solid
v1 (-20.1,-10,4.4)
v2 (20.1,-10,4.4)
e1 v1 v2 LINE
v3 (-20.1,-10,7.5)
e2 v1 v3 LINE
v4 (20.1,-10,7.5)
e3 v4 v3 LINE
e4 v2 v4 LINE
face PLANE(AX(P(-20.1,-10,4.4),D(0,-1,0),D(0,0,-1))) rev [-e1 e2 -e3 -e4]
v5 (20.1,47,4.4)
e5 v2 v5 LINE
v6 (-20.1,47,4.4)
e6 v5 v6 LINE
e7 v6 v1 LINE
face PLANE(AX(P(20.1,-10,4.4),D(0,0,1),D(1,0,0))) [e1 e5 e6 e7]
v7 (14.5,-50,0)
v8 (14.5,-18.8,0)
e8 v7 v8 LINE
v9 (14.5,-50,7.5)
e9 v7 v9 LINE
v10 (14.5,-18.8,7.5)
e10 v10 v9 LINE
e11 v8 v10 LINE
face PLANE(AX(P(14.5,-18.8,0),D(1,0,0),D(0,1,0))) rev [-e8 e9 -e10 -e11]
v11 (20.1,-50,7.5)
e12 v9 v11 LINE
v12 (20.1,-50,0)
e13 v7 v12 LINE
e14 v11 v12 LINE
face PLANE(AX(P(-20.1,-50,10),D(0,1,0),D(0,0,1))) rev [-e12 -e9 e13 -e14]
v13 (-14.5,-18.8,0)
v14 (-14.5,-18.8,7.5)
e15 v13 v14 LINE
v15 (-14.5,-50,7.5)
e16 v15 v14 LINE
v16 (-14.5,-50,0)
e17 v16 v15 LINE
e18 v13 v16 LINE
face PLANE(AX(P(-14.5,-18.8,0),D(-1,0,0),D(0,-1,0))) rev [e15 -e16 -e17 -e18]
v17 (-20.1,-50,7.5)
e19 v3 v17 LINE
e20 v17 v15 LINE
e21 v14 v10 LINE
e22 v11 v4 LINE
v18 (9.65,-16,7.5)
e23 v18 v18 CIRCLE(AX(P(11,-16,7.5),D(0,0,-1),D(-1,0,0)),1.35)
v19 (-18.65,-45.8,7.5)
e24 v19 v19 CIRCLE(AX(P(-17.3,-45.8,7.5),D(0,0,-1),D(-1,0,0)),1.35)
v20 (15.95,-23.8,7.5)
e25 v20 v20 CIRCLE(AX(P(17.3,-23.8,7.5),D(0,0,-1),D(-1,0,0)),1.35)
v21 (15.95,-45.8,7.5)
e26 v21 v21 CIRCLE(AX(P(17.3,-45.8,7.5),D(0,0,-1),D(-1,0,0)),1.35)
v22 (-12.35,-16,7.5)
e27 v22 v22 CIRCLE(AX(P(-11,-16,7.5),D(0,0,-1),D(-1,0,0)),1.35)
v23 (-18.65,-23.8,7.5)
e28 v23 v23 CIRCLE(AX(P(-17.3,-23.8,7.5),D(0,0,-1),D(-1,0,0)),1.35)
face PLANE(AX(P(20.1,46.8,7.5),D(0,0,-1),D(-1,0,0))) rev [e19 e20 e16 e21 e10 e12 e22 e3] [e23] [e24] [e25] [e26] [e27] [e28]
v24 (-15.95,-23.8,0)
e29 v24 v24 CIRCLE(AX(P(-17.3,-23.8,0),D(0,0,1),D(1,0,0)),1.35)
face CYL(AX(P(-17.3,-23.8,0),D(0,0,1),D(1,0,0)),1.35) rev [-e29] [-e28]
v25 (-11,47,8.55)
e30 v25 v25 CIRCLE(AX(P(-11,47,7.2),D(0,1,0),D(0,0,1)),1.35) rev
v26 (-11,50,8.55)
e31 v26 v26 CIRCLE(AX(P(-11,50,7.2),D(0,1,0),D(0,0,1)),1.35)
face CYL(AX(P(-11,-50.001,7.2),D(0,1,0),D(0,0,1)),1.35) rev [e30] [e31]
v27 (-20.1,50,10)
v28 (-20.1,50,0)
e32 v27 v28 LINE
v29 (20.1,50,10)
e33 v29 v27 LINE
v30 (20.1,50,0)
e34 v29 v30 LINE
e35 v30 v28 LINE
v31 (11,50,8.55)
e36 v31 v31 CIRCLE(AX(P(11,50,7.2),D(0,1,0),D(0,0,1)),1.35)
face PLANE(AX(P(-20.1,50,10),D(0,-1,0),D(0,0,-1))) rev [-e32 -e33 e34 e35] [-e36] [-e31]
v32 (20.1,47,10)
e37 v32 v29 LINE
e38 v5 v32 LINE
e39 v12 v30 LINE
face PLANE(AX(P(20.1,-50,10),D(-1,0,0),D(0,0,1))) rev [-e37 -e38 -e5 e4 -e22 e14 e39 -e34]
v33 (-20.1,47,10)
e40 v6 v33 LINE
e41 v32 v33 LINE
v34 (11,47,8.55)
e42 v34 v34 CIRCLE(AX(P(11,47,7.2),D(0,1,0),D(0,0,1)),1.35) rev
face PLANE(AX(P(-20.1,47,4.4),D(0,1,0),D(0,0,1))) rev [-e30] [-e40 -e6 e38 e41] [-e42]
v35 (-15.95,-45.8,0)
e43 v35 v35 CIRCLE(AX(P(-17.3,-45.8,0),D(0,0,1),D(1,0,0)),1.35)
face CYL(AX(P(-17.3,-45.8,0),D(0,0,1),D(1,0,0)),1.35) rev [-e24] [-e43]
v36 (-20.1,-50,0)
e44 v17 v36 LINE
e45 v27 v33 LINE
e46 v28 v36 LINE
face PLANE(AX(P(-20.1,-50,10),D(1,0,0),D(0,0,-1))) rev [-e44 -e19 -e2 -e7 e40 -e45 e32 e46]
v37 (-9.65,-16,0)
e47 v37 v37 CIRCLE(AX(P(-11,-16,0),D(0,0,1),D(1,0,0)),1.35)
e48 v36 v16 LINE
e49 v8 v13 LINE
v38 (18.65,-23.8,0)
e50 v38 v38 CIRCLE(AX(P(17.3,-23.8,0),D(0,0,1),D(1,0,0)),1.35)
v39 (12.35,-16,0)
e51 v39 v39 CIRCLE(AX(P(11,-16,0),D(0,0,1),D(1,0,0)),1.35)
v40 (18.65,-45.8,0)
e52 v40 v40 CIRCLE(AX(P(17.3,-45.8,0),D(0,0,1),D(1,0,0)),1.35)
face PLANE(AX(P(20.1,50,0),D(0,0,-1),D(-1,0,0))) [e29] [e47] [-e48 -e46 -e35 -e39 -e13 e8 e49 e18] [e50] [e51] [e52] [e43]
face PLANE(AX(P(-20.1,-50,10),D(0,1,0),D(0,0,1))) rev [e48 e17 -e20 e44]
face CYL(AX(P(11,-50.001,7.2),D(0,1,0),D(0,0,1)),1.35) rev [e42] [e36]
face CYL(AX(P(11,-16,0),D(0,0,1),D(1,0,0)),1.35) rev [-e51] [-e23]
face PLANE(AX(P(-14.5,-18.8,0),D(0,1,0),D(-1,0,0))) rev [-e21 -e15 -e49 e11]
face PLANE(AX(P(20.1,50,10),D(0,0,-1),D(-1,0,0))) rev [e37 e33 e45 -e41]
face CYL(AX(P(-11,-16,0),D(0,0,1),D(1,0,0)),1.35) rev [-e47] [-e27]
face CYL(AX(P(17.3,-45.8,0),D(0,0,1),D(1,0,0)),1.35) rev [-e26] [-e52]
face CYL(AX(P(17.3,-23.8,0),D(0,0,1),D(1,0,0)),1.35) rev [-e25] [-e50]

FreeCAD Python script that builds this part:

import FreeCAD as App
import Part
import Sketcher
Q = App.Units.Quantity

doc = App.newDocument("Part")
body = doc.addObject("PartDesign::Body", "Body")

sketch1 = doc.addObject("Sketcher::SketchObject", "Sketch")
body.addObject(sketch1)
sketch1.AttachmentSupport = (doc.XY_Plane, [""])
sketch1.MapMode = "FlatFace"
sketch1.addGeometry(Part.LineSegment(App.Vector(-20.1, 50, 0), App.Vector(-20.1, -50, 0)), False)
sketch1.addGeometry(Part.LineSegment(App.Vector(-20.1, -50, 0), App.Vector(20.1, -50, 0)), False)
sketch1.addGeometry(Part.LineSegment(App.Vector(20.1, -50, 0), App.Vector(20.1, 50, 0)), False)
sketch1.addGeometry(Part.LineSegment(App.Vector(20.1, 50, 0), App.Vector(-20.1, 50, 0)), False)
sketch1.addConstraint(Sketcher.Constraint("Coincident", 0, 2, 1, 1))
sketch1.addConstraint(Sketcher.Constraint("Coincident", 1, 2, 2, 1))
sketch1.addConstraint(Sketcher.Constraint("Coincident", 2, 2, 3, 1))
sketch1.addConstraint(Sketcher.Constraint("Coincident", 3, 2, 0, 1))
sketch1.addConstraint(Sketcher.Constraint("Vertical", 0))
sketch1.addConstraint(Sketcher.Constraint("Horizontal", 1))
sketch1.addConstraint(Sketcher.Constraint("Vertical", 2))
sketch1.addConstraint(Sketcher.Constraint("Horizontal", 3))
sketch1.addConstraint(Sketcher.Constraint("Symmetric", 0, 2, 2, 2, -1, 1))
sketch1.addConstraint(Sketcher.Constraint("DistanceY", 0, 2, 0, 1, Q("100 mm")))
sketch1.addConstraint(Sketcher.Constraint("DistanceX", 1, 1, 1, 2, Q("40.2 mm")))
pad1 = doc.addObject("PartDesign::Pad", "Pad")
body.addObject(pad1)
pad1.Profile = sketch1
pad1.Length = 10

sketch2 = doc.addObject("Sketcher::SketchObject", "Sketch001")
body.addObject(sketch2)
sketch2.AttachmentSupport = (doc.XY_Plane, [""])
sketch2.MapMode = "FlatFace"
sketch2.AttachmentOffset = App.Placement(App.Vector(0, 0, 10), App.Rotation())
sketch2.addGeometry(Part.LineSegment(App.Vector(-20.1, 46.8, 0), App.Vector(-20.1, -50, 0)), False)
sketch2.addGeometry(Part.LineSegment(App.Vector(-20.1, -50, 0), App.Vector(20.1, -50, 0)), False)
sketch2.addGeometry(Part.LineSegment(App.Vector(20.1, -50, 0), App.Vector(20.1, 46.8, 0)), False)
sketch2.addGeometry(Part.LineSegment(App.Vector(20.1, 46.8, 0), App.Vector(-20.1, 46.8, 0)), False)
sketch2.addConstraint(Sketcher.Constraint("Coincident", 0, 2, 1, 1))
sketch2.addConstraint(Sketcher.Constraint("Coincident", 1, 2, 2, 1))
sketch2.addConstraint(Sketcher.Constraint("Coincident", 2, 2, 3, 1))
sketch2.addConstraint(Sketcher.Constraint("Coincident", 3, 2, 0, 1))
sketch2.addConstraint(Sketcher.Constraint("Vertical", 0))
sketch2.addConstraint(Sketcher.Constraint("Horizontal", 1))
sketch2.addConstraint(Sketcher.Constraint("Vertical", 2))
sketch2.addConstraint(Sketcher.Constraint("Horizontal", 3))
sketch2.addConstraint(Sketcher.Constraint("DistanceX", 1, 1, 1, 2, Q("40.2 mm")))
sketch2.addConstraint(Sketcher.Constraint("DistanceY", 0, 2, 0, 1, Q("96.8 mm")))
sketch2.addConstraint(Sketcher.Constraint("DistanceY", 0, 2, -1, 1, Q("50 mm")))
sketch2.addConstraint(Sketcher.Constraint("DistanceX", 0, 2, -1, 1, Q("20.1 mm")))
pocket1 = doc.addObject("PartDesign::Pocket", "Pocket")
body.addObject(pocket1)
pocket1.Profile = sketch2
pocket1.Length = 2.5

sketch3 = doc.addObject("Sketcher::SketchObject", "Sketch002")
body.addObject(sketch3)
sketch3.AttachmentSupport = (doc.XY_Plane, [""])
sketch3.MapMode = "FlatFace"
sketch3.AttachmentOffset = App.Placement(App.Vector(0, 0, 10), App.Rotation())
sketch3.addGeometry(Part.LineSegment(App.Vector(-20.1, 47, 0), App.Vector(-20.1, -10, 0)), False)
sketch3.addGeometry(Part.LineSegment(App.Vector(-20.1, -10, 0), App.Vector(20.1, -10, 0)), False)
sketch3.addGeometry(Part.LineSegment(App.Vector(20.1, -10, 0), App.Vector(20.1, 47, 0)), False)
sketch3.addGeometry(Part.LineSegment(App.Vector(20.1, 47, 0), App.Vector(-20.1, 47, 0)), False)
sketch3.addConstraint(Sketcher.Constraint("Coincident", 0, 2, 1, 1))
sketch3.addConstraint(Sketcher.Constraint("Coincident", 1, 2, 2, 1))
sketch3.addConstraint(Sketcher.Constraint("Coincident", 2, 2, 3, 1))
sketch3.addConstraint(Sketcher.Constraint("Coincident", 3, 2, 0, 1))
sketch3.addConstraint(Sketcher.Constraint("Vertical", 0))
sketch3.addConstraint(Sketcher.Constraint("Horizontal", 1))
sketch3.addConstraint(Sketcher.Constraint("Vertical", 2))
sketch3.addConstraint(Sketcher.Constraint("Horizontal", 3))
sketch3.addConstraint(Sketcher.Constraint("DistanceY", 0, 2, 0, 1, Q("57 mm")))
sketch3.addConstraint(Sketcher.Constraint("DistanceX", 1, 1, 1, 2, Q("40.2 mm")))
sketch3.addConstraint(Sketcher.Constraint("DistanceY", 0, 2, -1, 1, Q("10 mm")))
sketch3.addConstraint(Sketcher.Constraint("DistanceX", 0, 2, -1, 1, Q("20.1 mm")))
pocket2 = doc.addObject("PartDesign::Pocket", "Pocket001")
body.addObject(pocket2)
pocket2.Profile = sketch3
pocket2.Length = 5.6

sketch4 = doc.addObject("Sketcher::SketchObject", "Sketch003")
body.addObject(sketch4)
sketch4.AttachmentSupport = (doc.XY_Plane, [""])
sketch4.MapMode = "FlatFace"
sketch4.AttachmentOffset = App.Placement(App.Vector(0, 0, 10), App.Rotation())
sketch4.addGeometry(Part.LineSegment(App.Vector(-14.5, -18.8, 0), App.Vector(-14.5, -50, 0)), False)
sketch4.addGeometry(Part.LineSegment(App.Vector(-14.5, -50, 0), App.Vector(14.5, -50, 0)), False)
sketch4.addGeometry(Part.LineSegment(App.Vector(14.5, -50, 0), App.Vector(14.5, -18.8, 0)), False)
sketch4.addGeometry(Part.LineSegment(App.Vector(14.5, -18.8, 0), App.Vector(-14.5, -18.8, 0)), False)
sketch4.addConstraint(Sketcher.Constraint("Coincident", 0, 2, 1, 1))
sketch4.addConstraint(Sketcher.Constraint("Coincident", 1, 2, 2, 1))
sketch4.addConstraint(Sketcher.Constraint("Coincident", 2, 2, 3, 1))
sketch4.addConstraint(Sketcher.Constraint("Coincident", 3, 2, 0, 1))
sketch4.addConstraint(Sketcher.Constraint("Vertical", 0))
sketch4.addConstraint(Sketcher.Constraint("Horizontal", 1))
sketch4.addConstraint(Sketcher.Constraint("Vertical", 2))
sketch4.addConstraint(Sketcher.Constraint("Horizontal", 3))
sketch4.addConstraint(Sketcher.Constraint("DistanceX", 1, 1, 1, 2, Q("29 mm")))
sketch4.addConstraint(Sketcher.Constraint("DistanceY", 0, 2, 0, 1, Q("31.2 mm")))
sketch4.addConstraint(Sketcher.Constraint("DistanceY", 0, 2, -1, 1, Q("50 mm")))
sketch4.addConstraint(Sketcher.Constraint("DistanceX", 0, 2, -1, 1, Q("14.5 mm")))
pocket3 = doc.addObject("PartDesign::Pocket", "Pocket002")
body.addObject(pocket3)
pocket3.Profile = sketch4
pocket3.Type = "ThroughAll"

sketch5 = doc.addObject("Sketcher::SketchObject", "Sketch004")
body.addObject(sketch5)
sketch5.AttachmentSupport = (doc.XY_Plane, [""])
sketch5.MapMode = "FlatFace"
sketch5.AttachmentOffset = App.Placement(App.Vector(0, 0, 10), App.Rotation())
sketch5.addGeometry(Part.Circle(App.Vector(17.3, -23.8, 0), App.Vector(0, 0, 1), 1.35), False)
sketch5.addGeometry(Part.Circle(App.Vector(11, -16, 0), App.Vector(0, 0, 1), 1.35), False)
sketch5.addGeometry(Part.Circle(App.Vector(-17.3, -23.8, 0), App.Vector(0, 0, 1), 1.35), False)
sketch5.addGeometry(Part.Circle(App.Vector(-11, -16, 0), App.Vector(0, 0, 1), 1.35), False)
sketch5.addGeometry(Part.Circle(App.Vector(-17.3, -45.8, 0), App.Vector(0, 0, 1), 1.35), False)
sketch5.addGeometry(Part.Circle(App.Vector(17.3, -45.8, 0), App.Vector(0, 0, 1), 1.35), False)
sketch5.addConstraint(Sketcher.Constraint("Equal", 0, 1))
sketch5.addConstraint(Sketcher.Constraint("Equal", 1, 2))
sketch5.addConstraint(Sketcher.Constraint("Equal", 2, 3))
sketch5.addConstraint(Sketcher.Constraint("Equal", 3, 4))
sketch5.addConstraint(Sketcher.Constraint("Equal", 4, 5))
sketch5.addConstraint(Sketcher.Constraint("Symmetric", 0, 3, 2, 3, -2))
sketch5.addConstraint(Sketcher.Constraint("Symmetric", 1, 3, 3, 3, -2))
sketch5.addConstraint(Sketcher.Constraint("Symmetric", 4, 3, 5, 3, -2))
sketch5.addConstraint(Sketcher.Constraint("Vertical", 2, 3, 4, 3))
sketch5.addConstraint(Sketcher.Constraint("Diameter", 0, Q("2.7 mm")))
sketch5.addConstraint(Sketcher.Constraint("DistanceX", -1, 1, 1, 3, Q("11 mm")))
sketch5.addConstraint(Sketcher.Constraint("DistanceY", 1, 3, -1, 1, Q("16 mm")))
sketch5.addConstraint(Sketcher.Constraint("DistanceY", 4, 3, 2, 3, Q("22 mm")))
sketch5.addConstraint(Sketcher.Constraint("DistanceX", -1, 1, 0, 3, Q("17.3 mm")))
sketch5.addConstraint(Sketcher.Constraint("DistanceY", 0, 3, -1, 1, Q("23.8 mm")))
pocket4 = doc.addObject("PartDesign::Pocket", "Pocket003")
body.addObject(pocket4)
pocket4.Profile = sketch5
pocket4.Type = "ThroughAll"

sketch6 = doc.addObject("Sketcher::SketchObject", "Sketch005")
body.addObject(sketch6)
sketch6.AttachmentSupport = (doc.XZ_Plane, [""])
sketch6.MapMode = "FlatFace"
sketch6.AttachmentOffset = App.Placement(App.Vector(0, 0, -50), App.Rotation())
sketch6.addGeometry(Part.Circle(App.Vector(11, 7.2, 0), App.Vector(0, 0, 1), 1.35), False)
sketch6.addConstraint(Sketcher.Constraint("Diameter", 0, Q("2.7 mm")))
sketch6.addConstraint(Sketcher.Constraint("DistanceX", -1, 1, 0, 3, Q("11 mm")))
sketch6.addConstraint(Sketcher.Constraint("DistanceY", -1, 1, 0, 3, Q("7.2 mm")))
pocket5 = doc.addObject("PartDesign::Pocket", "Pocket004")
body.addObject(pocket5)
pocket5.Profile = sketch6
pocket5.Type = "UpToFirst"
pocket5.Reversed = True

sketch7 = doc.addObject("Sketcher::SketchObject", "Sketch006")
body.addObject(sketch7)
sketch7.AttachmentSupport = (doc.XZ_Plane, [""])
sketch7.MapMode = "FlatFace"
sketch7.AttachmentOffset = App.Placement(App.Vector(0, 0, -50), App.Rotation())
sketch7.addGeometry(Part.Circle(App.Vector(-11, 7.2, 0), App.Vector(0, 0, 1), 1.35), False)
sketch7.addConstraint(Sketcher.Constraint("Diameter", 0, Q("2.7 mm")))
sketch7.addConstraint(Sketcher.Constraint("DistanceX", 0, 3, -1, 1, Q("11 mm")))
sketch7.addConstraint(Sketcher.Constraint("DistanceY", -1, 1, 0, 3, Q("7.2 mm")))
pocket6 = doc.addObject("PartDesign::Pocket", "Pocket005")
body.addObject(pocket6)
pocket6.Profile = sketch7
pocket6.Type = "UpToFirst"
pocket6.Reversed = True

doc.recompute()
